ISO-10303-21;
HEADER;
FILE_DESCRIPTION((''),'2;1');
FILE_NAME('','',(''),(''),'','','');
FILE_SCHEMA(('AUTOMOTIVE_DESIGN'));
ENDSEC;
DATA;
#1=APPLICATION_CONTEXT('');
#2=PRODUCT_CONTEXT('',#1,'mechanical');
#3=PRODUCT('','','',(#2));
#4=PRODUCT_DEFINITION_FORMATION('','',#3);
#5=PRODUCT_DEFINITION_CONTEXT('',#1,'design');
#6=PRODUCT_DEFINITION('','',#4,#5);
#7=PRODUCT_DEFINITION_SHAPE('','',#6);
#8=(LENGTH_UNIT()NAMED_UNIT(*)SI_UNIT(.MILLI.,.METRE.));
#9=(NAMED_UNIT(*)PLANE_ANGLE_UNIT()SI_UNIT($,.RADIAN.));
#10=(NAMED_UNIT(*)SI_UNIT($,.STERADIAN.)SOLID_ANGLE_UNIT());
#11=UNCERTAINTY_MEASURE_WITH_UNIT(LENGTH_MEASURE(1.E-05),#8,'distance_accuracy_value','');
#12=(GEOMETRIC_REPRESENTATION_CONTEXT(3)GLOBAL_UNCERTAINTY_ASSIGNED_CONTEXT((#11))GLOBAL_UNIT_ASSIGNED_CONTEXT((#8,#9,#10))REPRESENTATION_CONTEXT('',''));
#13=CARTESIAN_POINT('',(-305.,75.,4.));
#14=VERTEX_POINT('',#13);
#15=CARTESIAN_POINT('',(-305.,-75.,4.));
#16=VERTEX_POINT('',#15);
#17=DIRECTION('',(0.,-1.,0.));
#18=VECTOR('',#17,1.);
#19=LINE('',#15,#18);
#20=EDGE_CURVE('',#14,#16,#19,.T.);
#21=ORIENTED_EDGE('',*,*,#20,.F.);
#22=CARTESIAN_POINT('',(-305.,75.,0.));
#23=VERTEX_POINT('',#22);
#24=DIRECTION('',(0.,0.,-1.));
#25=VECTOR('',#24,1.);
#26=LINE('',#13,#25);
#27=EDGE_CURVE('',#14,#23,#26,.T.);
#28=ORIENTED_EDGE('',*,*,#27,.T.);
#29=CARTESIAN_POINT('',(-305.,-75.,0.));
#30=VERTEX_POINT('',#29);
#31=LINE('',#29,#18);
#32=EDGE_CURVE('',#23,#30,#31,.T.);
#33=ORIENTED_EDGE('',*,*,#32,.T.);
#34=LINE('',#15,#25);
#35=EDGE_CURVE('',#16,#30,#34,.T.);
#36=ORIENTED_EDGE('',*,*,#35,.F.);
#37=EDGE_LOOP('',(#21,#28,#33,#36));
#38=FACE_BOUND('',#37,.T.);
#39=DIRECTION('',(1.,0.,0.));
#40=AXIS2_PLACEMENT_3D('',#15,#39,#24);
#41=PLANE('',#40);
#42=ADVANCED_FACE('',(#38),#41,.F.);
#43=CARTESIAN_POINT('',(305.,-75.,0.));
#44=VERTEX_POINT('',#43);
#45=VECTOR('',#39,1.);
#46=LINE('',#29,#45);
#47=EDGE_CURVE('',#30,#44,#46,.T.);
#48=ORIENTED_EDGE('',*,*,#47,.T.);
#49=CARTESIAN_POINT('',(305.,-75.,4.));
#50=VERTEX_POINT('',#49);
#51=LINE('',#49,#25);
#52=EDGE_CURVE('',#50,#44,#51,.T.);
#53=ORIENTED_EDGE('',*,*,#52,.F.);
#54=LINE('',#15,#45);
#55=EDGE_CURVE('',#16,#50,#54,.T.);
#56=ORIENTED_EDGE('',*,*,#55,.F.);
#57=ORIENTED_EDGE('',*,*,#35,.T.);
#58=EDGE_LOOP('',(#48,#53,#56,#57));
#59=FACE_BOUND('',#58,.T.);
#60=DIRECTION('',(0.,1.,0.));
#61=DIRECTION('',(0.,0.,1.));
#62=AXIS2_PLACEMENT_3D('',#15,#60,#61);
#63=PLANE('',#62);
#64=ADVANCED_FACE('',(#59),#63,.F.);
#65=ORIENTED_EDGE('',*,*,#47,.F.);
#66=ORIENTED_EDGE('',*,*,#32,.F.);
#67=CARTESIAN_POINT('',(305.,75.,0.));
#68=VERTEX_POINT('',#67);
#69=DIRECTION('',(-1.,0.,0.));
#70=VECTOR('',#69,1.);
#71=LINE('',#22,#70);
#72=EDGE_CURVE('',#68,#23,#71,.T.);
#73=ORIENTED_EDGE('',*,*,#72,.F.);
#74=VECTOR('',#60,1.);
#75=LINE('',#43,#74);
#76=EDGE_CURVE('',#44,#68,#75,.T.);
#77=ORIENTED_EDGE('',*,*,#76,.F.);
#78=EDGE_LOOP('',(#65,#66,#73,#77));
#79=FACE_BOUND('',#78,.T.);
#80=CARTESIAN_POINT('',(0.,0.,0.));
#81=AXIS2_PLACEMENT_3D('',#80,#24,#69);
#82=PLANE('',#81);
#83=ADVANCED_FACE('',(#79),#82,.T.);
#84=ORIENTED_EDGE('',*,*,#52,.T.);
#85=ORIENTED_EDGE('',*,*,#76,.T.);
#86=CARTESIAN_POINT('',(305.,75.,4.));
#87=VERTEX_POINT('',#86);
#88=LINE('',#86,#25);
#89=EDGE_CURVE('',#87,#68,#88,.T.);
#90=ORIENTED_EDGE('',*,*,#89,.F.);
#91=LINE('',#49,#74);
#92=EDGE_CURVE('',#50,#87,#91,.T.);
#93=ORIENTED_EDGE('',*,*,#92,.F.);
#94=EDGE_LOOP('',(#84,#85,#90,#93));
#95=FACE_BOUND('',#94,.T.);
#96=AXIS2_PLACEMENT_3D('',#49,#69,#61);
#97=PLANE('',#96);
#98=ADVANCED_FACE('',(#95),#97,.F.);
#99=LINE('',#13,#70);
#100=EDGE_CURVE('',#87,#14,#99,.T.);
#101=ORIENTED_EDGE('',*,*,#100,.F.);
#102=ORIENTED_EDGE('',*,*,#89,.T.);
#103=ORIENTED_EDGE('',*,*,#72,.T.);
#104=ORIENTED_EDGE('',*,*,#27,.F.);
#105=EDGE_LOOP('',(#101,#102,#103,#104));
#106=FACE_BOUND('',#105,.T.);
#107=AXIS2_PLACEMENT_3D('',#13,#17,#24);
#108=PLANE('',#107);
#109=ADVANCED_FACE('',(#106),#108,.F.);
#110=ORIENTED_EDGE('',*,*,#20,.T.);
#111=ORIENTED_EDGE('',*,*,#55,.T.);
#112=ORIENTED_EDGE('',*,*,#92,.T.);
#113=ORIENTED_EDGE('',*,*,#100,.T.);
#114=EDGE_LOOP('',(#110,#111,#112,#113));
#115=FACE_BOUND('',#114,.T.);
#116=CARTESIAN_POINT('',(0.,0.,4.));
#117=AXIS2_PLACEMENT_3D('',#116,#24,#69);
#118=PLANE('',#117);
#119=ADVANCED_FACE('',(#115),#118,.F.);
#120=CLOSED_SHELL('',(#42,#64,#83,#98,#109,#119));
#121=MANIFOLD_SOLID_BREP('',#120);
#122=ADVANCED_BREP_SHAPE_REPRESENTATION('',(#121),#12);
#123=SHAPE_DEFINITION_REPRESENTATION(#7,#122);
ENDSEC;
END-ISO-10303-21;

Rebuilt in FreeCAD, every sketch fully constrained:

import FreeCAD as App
import Part
import Sketcher

V = App.Vector
Q = App.Units.Quantity


def add_polygon(sketch, points):
    """Adds a closed chain of lines whose ends are joined by coincident constraints."""
    first, n = sketch.GeometryCount, len(points)
    for a, b in zip(points, points[1:] + points[:1]):
        sketch.addGeometry(Part.LineSegment(App.Vector(*a, 0), App.Vector(*b, 0)), False)
    for i in range(n):
        sketch.addConstraint(Sketcher.Constraint("Coincident", first + i, 2, first + (i + 1) % n, 1))

doc = App.newDocument("Part")
body = doc.addObject("PartDesign::Body", "Body")

sketch1 = body.newObject("Sketcher::SketchObject", "Sketch")
sketch1.AttachmentSupport = (doc.getObject("XY_Plane"), [""])
sketch1.MapMode = "FlatFace"
add_polygon(sketch1, [(-305, 75), (-305, -75), (305, -75), (305, 75)])
sketch1.addConstraint([
    Sketcher.Constraint("Vertical", 0),
    Sketcher.Constraint("Horizontal", 1),
    Sketcher.Constraint("Vertical", 2),
    Sketcher.Constraint("Horizontal", 3),
    Sketcher.Constraint("Symmetric", 0, 2, 2, 2, -1, 1),
    Sketcher.Constraint("DistanceX", 1, 1, 1, 2, Q("610 mm")),
    Sketcher.Constraint("DistanceY", 0, 2, 0, 1, Q("150 mm")),
])
pad1 = body.newObject("PartDesign::Pad", "Pad")
pad1.Profile = sketch1
pad1.Length = 4

doc.recompute()
